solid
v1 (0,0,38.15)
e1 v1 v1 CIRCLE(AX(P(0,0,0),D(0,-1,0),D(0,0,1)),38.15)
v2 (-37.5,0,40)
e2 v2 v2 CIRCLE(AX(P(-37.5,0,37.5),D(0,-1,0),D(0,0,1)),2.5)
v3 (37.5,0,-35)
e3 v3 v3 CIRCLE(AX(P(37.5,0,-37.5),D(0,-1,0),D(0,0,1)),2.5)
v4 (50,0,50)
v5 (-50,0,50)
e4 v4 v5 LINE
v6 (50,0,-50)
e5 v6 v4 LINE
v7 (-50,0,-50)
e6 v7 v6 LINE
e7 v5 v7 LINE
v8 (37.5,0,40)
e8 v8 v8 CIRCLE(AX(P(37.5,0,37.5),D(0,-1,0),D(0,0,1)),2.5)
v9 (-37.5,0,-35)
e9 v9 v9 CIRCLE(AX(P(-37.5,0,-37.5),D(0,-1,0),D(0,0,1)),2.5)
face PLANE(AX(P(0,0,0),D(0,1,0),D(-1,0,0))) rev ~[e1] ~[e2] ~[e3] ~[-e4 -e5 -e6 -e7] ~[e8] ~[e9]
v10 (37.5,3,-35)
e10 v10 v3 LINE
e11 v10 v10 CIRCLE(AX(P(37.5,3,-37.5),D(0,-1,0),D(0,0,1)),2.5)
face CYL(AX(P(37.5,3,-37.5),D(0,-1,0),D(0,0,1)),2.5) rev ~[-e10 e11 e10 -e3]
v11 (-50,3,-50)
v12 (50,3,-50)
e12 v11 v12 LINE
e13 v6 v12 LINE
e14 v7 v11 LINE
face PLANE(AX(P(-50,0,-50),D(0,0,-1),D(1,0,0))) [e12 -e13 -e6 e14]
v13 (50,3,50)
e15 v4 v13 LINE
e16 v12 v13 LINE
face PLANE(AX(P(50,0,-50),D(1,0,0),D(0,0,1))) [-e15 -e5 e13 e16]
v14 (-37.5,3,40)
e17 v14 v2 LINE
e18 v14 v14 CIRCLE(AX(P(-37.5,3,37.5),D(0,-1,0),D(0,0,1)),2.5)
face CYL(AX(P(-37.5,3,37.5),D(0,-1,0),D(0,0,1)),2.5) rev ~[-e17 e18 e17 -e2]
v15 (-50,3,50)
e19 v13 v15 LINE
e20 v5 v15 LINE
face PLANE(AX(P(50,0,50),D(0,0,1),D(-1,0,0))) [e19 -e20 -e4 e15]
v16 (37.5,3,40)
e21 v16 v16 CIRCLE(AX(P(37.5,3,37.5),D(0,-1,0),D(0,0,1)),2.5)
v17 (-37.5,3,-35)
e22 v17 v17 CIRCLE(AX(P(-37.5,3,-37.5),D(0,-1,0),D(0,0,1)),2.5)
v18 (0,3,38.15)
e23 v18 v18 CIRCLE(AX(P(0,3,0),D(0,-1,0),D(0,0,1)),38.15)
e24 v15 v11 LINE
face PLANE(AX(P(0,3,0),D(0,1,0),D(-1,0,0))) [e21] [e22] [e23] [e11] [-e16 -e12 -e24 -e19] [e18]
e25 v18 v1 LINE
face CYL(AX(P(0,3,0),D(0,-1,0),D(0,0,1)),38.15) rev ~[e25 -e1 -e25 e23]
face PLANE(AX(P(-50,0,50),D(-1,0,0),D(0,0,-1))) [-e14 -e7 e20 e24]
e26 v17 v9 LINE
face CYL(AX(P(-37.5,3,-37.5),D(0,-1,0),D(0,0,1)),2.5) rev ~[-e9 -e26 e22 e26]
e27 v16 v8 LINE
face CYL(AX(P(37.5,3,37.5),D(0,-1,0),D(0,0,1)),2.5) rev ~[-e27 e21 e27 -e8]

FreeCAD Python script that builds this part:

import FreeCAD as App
import Part
import Sketcher
from FreeCAD import Vector
Q = App.Units.Quantity


def add_polygon(sketch, points):
    """Adds a closed chain of lines whose ends are joined by coincident constraints."""
    first, n = sketch.GeometryCount, len(points)
    for a, b in zip(points, points[1:] + points[:1]):
        sketch.addGeometry(Part.LineSegment(App.Vector(*a, 0), App.Vector(*b, 0)), False)
    for i in range(n):
        sketch.addConstraint(Sketcher.Constraint("Coincident", first + i, 2, first + (i + 1) % n, 1))

doc = App.newDocument("Part")
params = doc.addObject("Spreadsheet::Sheet", "Params")
for row, (alias, value) in enumerate([
    ("sketch1_width", "100 mm"),
    ("pad1_length", "3 mm"),
    ("sketch2_diameter", "76.3 mm"),
    ("hole_diameter", "76.3 mm"),
    ("sketch3_diameter", "5 mm"),
    ("hole2_diameter", "5 mm"),
], start=1):
    params.set(f"A{row}", alias)
    params.set(f"B{row}", "=" + value)
    params.setAlias(f"B{row}", alias)

body = doc.addObject("PartDesign::Body", "Body")

sketch1 = body.newObject("Sketcher::SketchObject", "Sketch")
sketch1.AttachmentSupport = (doc.getObject("XZ_Plane"), [""])
sketch1.MapMode = "FlatFace"
add_polygon(sketch1, [(-50, 50), (50, 50), (50, -50), (-50, -50)])
sketch1.addConstraint([
    Sketcher.Constraint("Horizontal", 0),
    Sketcher.Constraint("Vertical", 1),
    Sketcher.Constraint("Horizontal", 2),
    Sketcher.Constraint("Vertical", 3),
    Sketcher.Constraint("Symmetric", 0, 2, 2, 2, -1, 1),
    Sketcher.Constraint("Equal", 2, 1),
    Sketcher.Constraint("DistanceX", 0, 1, 0, 2, Q("100 mm")),
])
sketch1.setExpression("Constraints[10]", "Params.sketch1_width")
pad1 = body.newObject("PartDesign::Pad", "Pad")
pad1.Profile = sketch1
pad1.setExpression("Length", "Params.pad1_length")
pad1.Reversed = True

sketch2 = body.newObject("Sketcher::SketchObject", "Sketch001")
sketch2.AttachmentSupport = (doc.getObject("XZ_Plane"), [""])
sketch2.MapMode = "FlatFace"
sketch2.AttachmentOffset = App.Placement(Vector(0, 0, -3), App.Rotation())
sketch2.addGeometry(Part.Circle(Vector(0, 0, 0), Vector(0, 0, 1), 38), False)
sketch2.addConstraint([
    Sketcher.Constraint("Coincident", 0, 3, -1, 1),
    Sketcher.Constraint("Diameter", 0, Q("76.3 mm")),
])
sketch2.setExpression("Constraints[1]", "Params.sketch2_diameter")
doc.recompute()
hole = body.newObject("PartDesign::Hole", "Hole")
hole.Profile = sketch2
hole.ThreadType = "None"
hole.setExpression("Diameter", "Params.hole_diameter")
hole.DepthType = "ThroughAll"
hole.Reversed = True

sketch3 = body.newObject("Sketcher::SketchObject", "Sketch002")
sketch3.AttachmentSupport = (doc.getObject("XZ_Plane"), [""])
sketch3.MapMode = "FlatFace"
sketch3.AttachmentOffset = App.Placement(Vector(0, 0, -3), App.Rotation())
sketch3.addGeometry([
    Part.Circle(Vector(-37.5, 37.5, 0), Vector(0, 0, 1), 2.5),
    Part.Circle(Vector(-37.5, -37.5, 0), Vector(0, 0, 1), 2.5),
    Part.Circle(Vector(37.5, -37.5, 0), Vector(0, 0, 1), 2.5),
    Part.Circle(Vector(37.5, 37.5, 0), Vector(0, 0, 1), 2.5),
], False)
sketch3.addConstraint([
    Sketcher.Constraint("Equal", 0, 1),
    Sketcher.Constraint("Equal", 1, 2),
    Sketcher.Constraint("Equal", 2, 3),
    Sketcher.Constraint("Symmetric", 0, 3, 2, 3, -1, 1),
    Sketcher.Constraint("Symmetric", 1, 3, 3, 3, -1, 1),
    Sketcher.Constraint("Symmetric", 1, 3, 2, 3, -2),
    Sketcher.Constraint("Diameter", 0, Q("5 mm")),
    Sketcher.Constraint("DistanceY", 1, 3, 0, 3, Q("75 mm")),
    Sketcher.Constraint("DistanceX", 1, 3, 2, 3, Q("75 mm")),
])
sketch3.setExpression("Constraints[6]", "Params.sketch3_diameter")
doc.recompute()
hole2 = body.newObject("PartDesign::Hole", "Hole001")
hole2.Profile = sketch3
hole2.ThreadType = "None"
hole2.setExpression("Diameter", "Params.hole2_diameter")
hole2.DepthType = "ThroughAll"
hole2.Reversed = True

doc.recompute()
